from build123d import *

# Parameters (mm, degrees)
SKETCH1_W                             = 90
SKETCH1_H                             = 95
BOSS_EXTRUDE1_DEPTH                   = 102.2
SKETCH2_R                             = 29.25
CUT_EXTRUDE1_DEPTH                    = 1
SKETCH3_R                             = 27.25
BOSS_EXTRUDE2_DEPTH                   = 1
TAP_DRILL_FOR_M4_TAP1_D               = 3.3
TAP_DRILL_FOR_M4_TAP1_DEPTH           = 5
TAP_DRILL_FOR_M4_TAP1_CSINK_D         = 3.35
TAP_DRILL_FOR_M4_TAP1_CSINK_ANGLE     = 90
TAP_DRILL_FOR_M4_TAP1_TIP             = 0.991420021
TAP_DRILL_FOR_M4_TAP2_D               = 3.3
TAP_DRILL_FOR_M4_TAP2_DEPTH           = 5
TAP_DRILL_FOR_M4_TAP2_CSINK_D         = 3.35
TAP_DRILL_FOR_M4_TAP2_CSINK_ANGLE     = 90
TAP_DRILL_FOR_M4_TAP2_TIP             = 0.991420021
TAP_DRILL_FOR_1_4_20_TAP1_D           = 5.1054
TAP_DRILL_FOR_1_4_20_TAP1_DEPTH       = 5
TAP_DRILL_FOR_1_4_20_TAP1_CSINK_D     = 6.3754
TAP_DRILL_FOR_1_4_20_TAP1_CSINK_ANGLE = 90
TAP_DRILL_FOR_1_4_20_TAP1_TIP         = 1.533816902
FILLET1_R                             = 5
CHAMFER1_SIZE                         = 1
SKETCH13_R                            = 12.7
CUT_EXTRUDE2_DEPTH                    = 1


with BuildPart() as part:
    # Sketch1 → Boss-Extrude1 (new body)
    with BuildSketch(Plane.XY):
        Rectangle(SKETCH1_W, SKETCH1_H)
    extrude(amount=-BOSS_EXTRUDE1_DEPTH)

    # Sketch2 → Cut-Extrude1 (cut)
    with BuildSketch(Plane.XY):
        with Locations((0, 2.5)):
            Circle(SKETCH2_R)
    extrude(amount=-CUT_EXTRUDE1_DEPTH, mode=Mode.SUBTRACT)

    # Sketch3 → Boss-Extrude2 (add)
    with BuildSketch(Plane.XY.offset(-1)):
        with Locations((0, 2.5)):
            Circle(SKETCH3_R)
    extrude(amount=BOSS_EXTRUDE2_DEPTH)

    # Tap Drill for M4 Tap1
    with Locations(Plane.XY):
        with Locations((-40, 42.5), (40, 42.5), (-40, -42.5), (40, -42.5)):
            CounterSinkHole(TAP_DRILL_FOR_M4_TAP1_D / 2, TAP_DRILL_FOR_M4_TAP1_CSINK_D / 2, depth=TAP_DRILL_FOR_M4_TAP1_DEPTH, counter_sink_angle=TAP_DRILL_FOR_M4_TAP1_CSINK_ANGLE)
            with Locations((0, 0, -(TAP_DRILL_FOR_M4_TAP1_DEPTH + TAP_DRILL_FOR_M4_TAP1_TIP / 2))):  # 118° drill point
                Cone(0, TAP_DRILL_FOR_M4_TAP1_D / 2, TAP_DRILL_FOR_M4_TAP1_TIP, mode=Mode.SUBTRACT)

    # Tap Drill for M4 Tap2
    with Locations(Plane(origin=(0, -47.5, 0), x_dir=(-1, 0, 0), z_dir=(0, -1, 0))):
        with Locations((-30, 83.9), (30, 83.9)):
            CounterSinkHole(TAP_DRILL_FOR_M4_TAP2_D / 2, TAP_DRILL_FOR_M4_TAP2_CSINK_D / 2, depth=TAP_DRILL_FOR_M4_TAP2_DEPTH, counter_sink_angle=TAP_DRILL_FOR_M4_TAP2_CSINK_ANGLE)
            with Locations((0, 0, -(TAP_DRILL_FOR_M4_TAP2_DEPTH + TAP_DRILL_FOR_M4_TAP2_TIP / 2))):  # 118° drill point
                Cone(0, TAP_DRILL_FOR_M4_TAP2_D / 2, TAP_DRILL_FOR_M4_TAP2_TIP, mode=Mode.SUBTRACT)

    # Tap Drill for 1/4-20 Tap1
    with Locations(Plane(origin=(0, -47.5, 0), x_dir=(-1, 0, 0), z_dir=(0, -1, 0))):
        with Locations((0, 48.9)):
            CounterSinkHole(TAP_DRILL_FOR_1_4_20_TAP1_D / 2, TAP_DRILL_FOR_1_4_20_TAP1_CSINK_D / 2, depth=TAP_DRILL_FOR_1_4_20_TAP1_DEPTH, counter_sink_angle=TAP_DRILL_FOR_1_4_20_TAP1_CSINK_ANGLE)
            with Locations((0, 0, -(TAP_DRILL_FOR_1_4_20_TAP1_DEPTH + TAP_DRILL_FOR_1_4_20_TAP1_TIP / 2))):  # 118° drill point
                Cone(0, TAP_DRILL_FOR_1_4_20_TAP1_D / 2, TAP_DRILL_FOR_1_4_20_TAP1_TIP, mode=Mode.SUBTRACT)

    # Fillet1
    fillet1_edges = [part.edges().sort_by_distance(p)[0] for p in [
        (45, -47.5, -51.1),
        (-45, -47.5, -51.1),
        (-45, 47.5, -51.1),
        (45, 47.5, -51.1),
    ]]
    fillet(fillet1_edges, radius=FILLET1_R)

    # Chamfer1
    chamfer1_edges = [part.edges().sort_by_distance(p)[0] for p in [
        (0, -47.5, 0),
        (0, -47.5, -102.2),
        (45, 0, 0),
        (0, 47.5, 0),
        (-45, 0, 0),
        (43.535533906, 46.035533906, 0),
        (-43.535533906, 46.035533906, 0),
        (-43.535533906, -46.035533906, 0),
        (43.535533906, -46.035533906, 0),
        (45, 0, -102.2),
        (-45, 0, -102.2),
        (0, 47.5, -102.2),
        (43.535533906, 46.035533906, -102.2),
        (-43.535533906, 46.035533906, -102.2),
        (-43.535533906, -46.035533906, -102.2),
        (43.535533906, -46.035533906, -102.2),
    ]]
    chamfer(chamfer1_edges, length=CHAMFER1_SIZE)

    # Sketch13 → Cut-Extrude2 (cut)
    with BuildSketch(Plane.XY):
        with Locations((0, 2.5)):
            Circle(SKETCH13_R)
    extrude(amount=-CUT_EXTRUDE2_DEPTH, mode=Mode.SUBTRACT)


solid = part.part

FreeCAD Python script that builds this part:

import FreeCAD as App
import Part
import Sketcher
from FreeCAD import Vector


def edges_at(feature, points):
    """Names of the edges that pass closest to the given points."""
    edges = feature.Shape.Edges
    near = lambda p: min(range(len(edges)), key=lambda i: edges[i].distToShape(Part.Vertex(*p))[0])
    return sorted({f"Edge{near(p) + 1}" for p in points})


def add_polygon(sketch, points):
    """Adds a closed chain of lines whose ends are joined by coincident constraints."""
    first, n = sketch.GeometryCount, len(points)
    for a, b in zip(points, points[1:] + points[:1]):
        sketch.addGeometry(Part.LineSegment(App.Vector(*a, 0), App.Vector(*b, 0)), False)
    for i in range(n):
        sketch.addConstraint(Sketcher.Constraint("Coincident", first + i, 2, first + (i + 1) % n, 1))

doc = App.newDocument("Part")
body = doc.addObject("PartDesign::Body", "Body")

# Sketch on XY plane
sketch1 = doc.addObject("Sketcher::SketchObject", "Sketch")
body.addObject(sketch1)
sketch1.AttachmentSupport = (doc.XY_Plane, [""])
sketch1.MapMode = "FlatFace"
add_polygon(sketch1, [(-45, 48), (-45, -48), (45, -48), (45, 48)])  # lines 0-3
sketch1.addConstraint(Sketcher.Constraint("Vertical", 0))
sketch1.addConstraint(Sketcher.Constraint("Horizontal", 1))
sketch1.addConstraint(Sketcher.Constraint("Vertical", 2))
sketch1.addConstraint(Sketcher.Constraint("Horizontal", 3))
sketch1.addConstraint(Sketcher.Constraint("Symmetric", 0, 2, 2, 2, -1, 1))
sketch1.addConstraint(Sketcher.Constraint("DistanceX", 1, 1, 1, 2, 90.0))
sketch1.addConstraint(Sketcher.Constraint("DistanceY", 0, 2, 0, 1, 95.0))
pad1 = doc.addObject("PartDesign::Pad", "Pad")
body.addObject(pad1)
pad1.Profile = sketch1
pad1.Length = 102.2
pad1.Reversed = True

# Sketch on XY plane
sketch2 = doc.addObject("Sketcher::SketchObject", "Sketch001")
body.addObject(sketch2)
sketch2.AttachmentSupport = (doc.XY_Plane, [""])
sketch2.MapMode = "FlatFace"
sketch2.addGeometry(Part.Circle(Vector(0, 2, 0), Vector(0, 0, 1), 29), False)
sketch2.addConstraint(Sketcher.Constraint("PointOnObject", 0, 3, -2))
sketch2.addConstraint(Sketcher.Constraint("Diameter", 0, 58.5))
sketch2.addConstraint(Sketcher.Constraint("DistanceY", -1, 1, 0, 3, 2.5))
pocket1 = doc.addObject("PartDesign::Pocket", "Pocket")
body.addObject(pocket1)
pocket1.Profile = sketch2
pocket1.Length = 1

# Sketch on XY plane
sketch3 = doc.addObject("Sketcher::SketchObject", "Sketch002")
body.addObject(sketch3)
sketch3.AttachmentSupport = (doc.XY_Plane, [""])
sketch3.MapMode = "FlatFace"
sketch3.AttachmentOffset = App.Placement(Vector(0, 0, -1), App.Rotation())
sketch3.addGeometry(Part.Circle(Vector(0, 2, 0), Vector(0, 0, 1), 27), False)
sketch3.addConstraint(Sketcher.Constraint("PointOnObject", 0, 3, -2))
sketch3.addConstraint(Sketcher.Constraint("Diameter", 0, 54.5))
sketch3.addConstraint(Sketcher.Constraint("DistanceY", -1, 1, 0, 3, 2.5))
pad2 = doc.addObject("PartDesign::Pad", "Pad001")
body.addObject(pad2)
pad2.Profile = sketch3
pad2.Length = 1

# Sketch on XY plane
sketch4 = doc.addObject("Sketcher::SketchObject", "Sketch003")
body.addObject(sketch4)
sketch4.AttachmentSupport = (doc.XY_Plane, [""])
sketch4.MapMode = "FlatFace"
sketch4.addGeometry(Part.Circle(Vector(-40, 42.5, 0), Vector(0, 0, 1), 1.6), False)
sketch4.addGeometry(Part.Circle(Vector(40, 42.5, 0), Vector(0, 0, 1), 1.6), False)
sketch4.addGeometry(Part.Circle(Vector(-40, -42.5, 0), Vector(0, 0, 1), 1.6), False)
sketch4.addGeometry(Part.Circle(Vector(40, -42.5, 0), Vector(0, 0, 1), 1.6), False)
sketch4.addConstraint(Sketcher.Constraint("Equal", 0, 1))
sketch4.addConstraint(Sketcher.Constraint("Equal", 1, 2))
sketch4.addConstraint(Sketcher.Constraint("Equal", 2, 3))
sketch4.addConstraint(Sketcher.Constraint("Symmetric", 1, 3, 2, 3, -1, 1))
sketch4.addConstraint(Sketcher.Constraint("Symmetric", 0, 3, 3, 3, -1, 1))
sketch4.addConstraint(Sketcher.Constraint("Symmetric", 0, 3, 1, 3, -2))
sketch4.addConstraint(Sketcher.Constraint("Diameter", 0, 3.3))
sketch4.addConstraint(Sketcher.Constraint("DistanceX", 0, 3, -1, 1, 40.0))
sketch4.addConstraint(Sketcher.Constraint("DistanceY", 2, 3, 0, 3, 85.0))
doc.recompute()
hole = doc.addObject("PartDesign::Hole", "Hole")
body.addObject(hole)
hole.Profile = sketch4
hole.ThreadType = "None"
hole.Diameter = 3.3
hole.DepthType = "Dimension"
hole.Depth = 5
hole.DrillPoint = "Angled"
hole.DrillPointAngle = 118
hole.HoleCutType = "Countersink"
hole.HoleCutDiameter = 3.35
hole.HoleCutCountersinkAngle = 90

# Sketch on XZ plane
sketch5 = doc.addObject("Sketcher::SketchObject", "Sketch004")
body.addObject(sketch5)
sketch5.AttachmentSupport = (doc.XZ_Plane, [""])
sketch5.MapMode = "FlatFace"
sketch5.AttachmentOffset = App.Placement(Vector(0, 0, 47.5), App.Rotation())
sketch5.addGeometry(Part.Circle(Vector(30, -83.9, 0), Vector(0, 0, 1), 1.6), False)
sketch5.addGeometry(Part.Circle(Vector(-30, -83.9, 0), Vector(0, 0, 1), 1.6), False)
sketch5.addConstraint(Sketcher.Constraint("Equal", 0, 1))
sketch5.addConstraint(Sketcher.Constraint("Symmetric", 0, 3, 1, 3, -2))
sketch5.addConstraint(Sketcher.Constraint("Diameter", 0, 3.3))
sketch5.addConstraint(Sketcher.Constraint("DistanceX", -1, 1, 0, 3, 30.0))
sketch5.addConstraint(Sketcher.Constraint("DistanceY", 0, 3, -1, 1, 83.9))
doc.recompute()
hole2 = doc.addObject("PartDesign::Hole", "Hole001")
body.addObject(hole2)
hole2.Profile = sketch5
hole2.ThreadType = "None"
hole2.Diameter = 3.3
hole2.DepthType = "Dimension"
hole2.Depth = 5
hole2.DrillPoint = "Angled"
hole2.DrillPointAngle = 118
hole2.HoleCutType = "Countersink"
hole2.HoleCutDiameter = 3.35
hole2.HoleCutCountersinkAngle = 90

# Sketch on XZ plane
sketch6 = doc.addObject("Sketcher::SketchObject", "Sketch005")
body.addObject(sketch6)
sketch6.AttachmentSupport = (doc.XZ_Plane, [""])
sketch6.MapMode = "FlatFace"
sketch6.AttachmentOffset = App.Placement(Vector(0, 0, 47.5), App.Rotation())
sketch6.addGeometry(Part.Circle(Vector(0, -48.9, 0), Vector(0, 0, 1), 2.6), False)
sketch6.addConstraint(Sketcher.Constraint("PointOnObject", 0, 3, -2))
sketch6.addConstraint(Sketcher.Constraint("Diameter", 0, 5.1054))
sketch6.addConstraint(Sketcher.Constraint("DistanceY", 0, 3, -1, 1, 48.9))
doc.recompute()
hole3 = doc.addObject("PartDesign::Hole", "Hole002")
body.addObject(hole3)
hole3.Profile = sketch6
hole3.ThreadType = "None"
hole3.Diameter = 5.1054
hole3.DepthType = "Dimension"
hole3.Depth = 5
hole3.DrillPoint = "Angled"
hole3.DrillPointAngle = 118
hole3.HoleCutType = "Countersink"
hole3.HoleCutDiameter = 6.3754
hole3.HoleCutCountersinkAngle = 90
doc.recompute()

fillet = doc.addObject("PartDesign::Fillet", "Fillet")
body.addObject(fillet)
fillet.Base = (hole3, edges_at(hole3, [
    (45, -47.5, -51.1),
    (-45, -47.5, -51.1),
    (-45, 47.5, -51.1),
    (45, 47.5, -51.1),
]))
fillet.Radius = 5
doc.recompute()

chamfer = doc.addObject("PartDesign::Chamfer", "Chamfer")
body.addObject(chamfer)
chamfer.Base = (fillet, edges_at(fillet, [
    (0, -47.5, 0),
    (0, -47.5, -102.2),
    (45, 0, 0),
    (0, 47.5, 0),
    (-45, 0, 0),
    (43.536, 46.036, 0),
    (-43.536, 46.036, 0),
    (-43.536, -46.036, 0),
    (43.536, -46.036, 0),
    (45, 0, -102.2),
    (-45, 0, -102.2),
    (0, 47.5, -102.2),
    (43.536, 46.036, -102.2),
    (-43.536, 46.036, -102.2),
    (-43.536, -46.036, -102.2),
    (43.536, -46.036, -102.2),
]))
chamfer.Size = 1

# Sketch on XY plane
sketch7 = doc.addObject("Sketcher::SketchObject", "Sketch006")
body.addObject(sketch7)
sketch7.AttachmentSupport = (doc.XY_Plane, [""])
sketch7.MapMode = "FlatFace"
sketch7.addGeometry(Part.Circle(Vector(0, 2, 0), Vector(0, 0, 1), 13), False)
sketch7.addConstraint(Sketcher.Constraint("PointOnObject", 0, 3, -2))
sketch7.addConstraint(Sketcher.Constraint("Diameter", 0, 25.4))
sketch7.addConstraint(Sketcher.Constraint("DistanceY", -1, 1, 0, 3, 2.5))
pocket2 = doc.addObject("PartDesign::Pocket", "Pocket001")
body.addObject(pocket2)
pocket2.Profile = sketch7
pocket2.Length = 1

doc.recompute()
